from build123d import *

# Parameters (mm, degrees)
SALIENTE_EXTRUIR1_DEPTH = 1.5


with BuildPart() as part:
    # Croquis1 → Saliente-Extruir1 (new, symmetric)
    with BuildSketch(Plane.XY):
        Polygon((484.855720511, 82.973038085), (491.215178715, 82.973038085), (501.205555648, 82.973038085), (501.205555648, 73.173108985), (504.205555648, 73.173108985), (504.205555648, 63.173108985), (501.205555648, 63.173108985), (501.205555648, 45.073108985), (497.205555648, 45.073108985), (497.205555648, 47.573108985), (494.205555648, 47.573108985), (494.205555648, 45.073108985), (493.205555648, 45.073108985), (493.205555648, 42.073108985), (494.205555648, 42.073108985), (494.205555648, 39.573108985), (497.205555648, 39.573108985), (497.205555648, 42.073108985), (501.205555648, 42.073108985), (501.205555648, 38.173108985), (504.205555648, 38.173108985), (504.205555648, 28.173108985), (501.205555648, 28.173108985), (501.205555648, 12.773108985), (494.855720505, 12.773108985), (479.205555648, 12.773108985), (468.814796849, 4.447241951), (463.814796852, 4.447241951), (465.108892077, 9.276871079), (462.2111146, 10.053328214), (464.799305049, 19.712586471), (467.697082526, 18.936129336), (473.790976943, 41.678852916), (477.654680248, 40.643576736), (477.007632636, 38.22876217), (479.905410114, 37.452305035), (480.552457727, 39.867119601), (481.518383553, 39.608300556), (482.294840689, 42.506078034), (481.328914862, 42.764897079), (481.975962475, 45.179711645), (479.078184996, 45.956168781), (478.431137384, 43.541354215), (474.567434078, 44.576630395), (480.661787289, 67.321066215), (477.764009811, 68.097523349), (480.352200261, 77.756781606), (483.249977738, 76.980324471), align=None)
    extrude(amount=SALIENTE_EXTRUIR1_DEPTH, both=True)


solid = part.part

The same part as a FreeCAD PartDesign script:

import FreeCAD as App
import Part
import Sketcher

V = App.Vector
Q = App.Units.Quantity

doc = App.newDocument("Part")
params = doc.addObject("Spreadsheet::Sheet", "Params")
for row, (alias, value) in enumerate([
    ("sketch1_width", "5 mm"),
    ("sketch1_width2", "22 mm"),
    ("sketch1_width3", "3 mm"),
    ("sketch1_width4", "4 mm"),
    ("sketch1_width5", "1 mm"),
    ("pad1_length", "3 mm"),
], start=1):
    params.set(f"A{row}", alias)
    params.set(f"B{row}", "=" + value)
    params.setAlias(f"B{row}", alias)

body = doc.addObject("PartDesign::Body", "Body")

# Sketch on XY plane
sketch1 = doc.addObject("Sketcher::SketchObject", "Sketch")
body.addObject(sketch1)
sketch1.AttachmentSupport = (doc.XY_Plane, [""])
sketch1.MapMode = "FlatFace"
sketch1.addGeometry([
    Part.LineSegment(V(501.2, 83, 0), V(484.9, 83, 0)),  # 0
    Part.LineSegment(V(484.9, 83, 0), V(483.2, 77, 0)),  # 1
    Part.LineSegment(V(483.2, 77, 0), V(480.4, 77.8, 0)),  # 2
    Part.LineSegment(V(480.4, 77.8, 0), V(477.8, 68.1, 0)),  # 3
    Part.LineSegment(V(477.8, 68.1, 0), V(480.7, 67.3, 0)),  # 4
    Part.LineSegment(V(480.7, 67.3, 0), V(474.6, 44.6, 0)),  # 5
    Part.LineSegment(V(474.6, 44.6, 0), V(478.4, 43.5, 0)),  # 6
    Part.LineSegment(V(478.4, 43.5, 0), V(479.1, 46, 0)),  # 7
    Part.LineSegment(V(479.1, 46, 0), V(482, 45.2, 0)),  # 8
    Part.LineSegment(V(482, 45.2, 0), V(481.3, 42.8, 0)),  # 9
    Part.LineSegment(V(481.3, 42.8, 0), V(482.3, 42.5, 0)),  # 10
    Part.LineSegment(V(482.3, 42.5, 0), V(481.5, 39.6, 0)),  # 11
    Part.LineSegment(V(481.5, 39.6, 0), V(480.6, 39.9, 0)),  # 12
    Part.LineSegment(V(480.6, 39.9, 0), V(479.9, 37.5, 0)),  # 13
    Part.LineSegment(V(479.9, 37.5, 0), V(477, 38.2, 0)),  # 14
    Part.LineSegment(V(477, 38.2, 0), V(477.7, 40.6, 0)),  # 15
    Part.LineSegment(V(477.7, 40.6, 0), V(473.8, 41.7, 0)),  # 16
    Part.LineSegment(V(473.8, 41.7, 0), V(467.7, 18.9, 0)),  # 17
    Part.LineSegment(V(467.7, 18.9, 0), V(464.8, 19.7, 0)),  # 18
    Part.LineSegment(V(464.8, 19.7, 0), V(462.2, 10.1, 0)),  # 19
    Part.LineSegment(V(462.2, 10.1, 0), V(465.1, 9.3, 0)),  # 20
    Part.LineSegment(V(465.1, 9.3, 0), V(463.8, 4.4, 0)),  # 21
    Part.LineSegment(V(463.8, 4.4, 0), V(468.8, 4.4, 0)),  # 22
    Part.LineSegment(V(468.8, 4.4, 0), V(479.2, 12.8, 0)),  # 23
    Part.LineSegment(V(479.2, 12.8, 0), V(501.2, 12.8, 0)),  # 24
    Part.LineSegment(V(501.2, 12.8, 0), V(501.2, 28.2, 0)),  # 25
    Part.LineSegment(V(501.2, 28.2, 0), V(504.2, 28.2, 0)),  # 26
    Part.LineSegment(V(504.2, 28.2, 0), V(504.2, 38.2, 0)),  # 27
    Part.LineSegment(V(504.2, 38.2, 0), V(501.2, 38.2, 0)),  # 28
    Part.LineSegment(V(501.2, 38.2, 0), V(501.2, 42.1, 0)),  # 29
    Part.LineSegment(V(501.2, 42.1, 0), V(497.2, 42.1, 0)),  # 30
    Part.LineSegment(V(497.2, 42.1, 0), V(497.2, 39.6, 0)),  # 31
    Part.LineSegment(V(497.2, 39.6, 0), V(494.2, 39.6, 0)),  # 32
    Part.LineSegment(V(494.2, 39.6, 0), V(494.2, 42.1, 0)),  # 33
    Part.LineSegment(V(494.2, 42.1, 0), V(493.2, 42.1, 0)),  # 34
    Part.LineSegment(V(493.2, 42.1, 0), V(493.2, 45.1, 0)),  # 35
    Part.LineSegment(V(493.2, 45.1, 0), V(494.2, 45.1, 0)),  # 36
    Part.LineSegment(V(494.2, 45.1, 0), V(494.2, 47.6, 0)),  # 37
    Part.LineSegment(V(494.2, 47.6, 0), V(497.2, 47.6, 0)),  # 38
    Part.LineSegment(V(497.2, 47.6, 0), V(497.2, 45.1, 0)),  # 39
    Part.LineSegment(V(497.2, 45.1, 0), V(501.2, 45.1, 0)),  # 40
    Part.LineSegment(V(501.2, 45.1, 0), V(501.2, 63.2, 0)),  # 41
    Part.LineSegment(V(501.2, 63.2, 0), V(504.2, 63.2, 0)),  # 42
    Part.LineSegment(V(504.2, 63.2, 0), V(504.2, 73.2, 0)),  # 43
    Part.LineSegment(V(504.2, 73.2, 0), V(501.2, 73.2, 0)),  # 44
    Part.LineSegment(V(501.2, 73.2, 0), V(501.2, 83, 0)),  # 45
], False)
sketch1.addConstraint([
    Sketcher.Constraint("Coincident", 0, 2, 1, 1),
    Sketcher.Constraint("Coincident", 1, 2, 2, 1),
    Sketcher.Constraint("Coincident", 2, 2, 3, 1),
    Sketcher.Constraint("Coincident", 3, 2, 4, 1),
    Sketcher.Constraint("Coincident", 4, 2, 5, 1),
    Sketcher.Constraint("Coincident", 5, 2, 6, 1),
    Sketcher.Constraint("Coincident", 6, 2, 7, 1),
    Sketcher.Constraint("Coincident", 7, 2, 8, 1),
    Sketcher.Constraint("Coincident", 8, 2, 9, 1),
    Sketcher.Constraint("Coincident", 9, 2, 10, 1),
    Sketcher.Constraint("Coincident", 10, 2, 11, 1),
    Sketcher.Constraint("Coincident", 11, 2, 12, 1),
    Sketcher.Constraint("Coincident", 12, 2, 13, 1),
    Sketcher.Constraint("Coincident", 13, 2, 14, 1),
    Sketcher.Constraint("Coincident", 14, 2, 15, 1),
    Sketcher.Constraint("Coincident", 15, 2, 16, 1),
    Sketcher.Constraint("Coincident", 16, 2, 17, 1),
    Sketcher.Constraint("Coincident", 17, 2, 18, 1),
    Sketcher.Constraint("Coincident", 18, 2, 19, 1),
    Sketcher.Constraint("Coincident", 19, 2, 20, 1),
    Sketcher.Constraint("Coincident", 20, 2, 21, 1),
    Sketcher.Constraint("Coincident", 21, 2, 22, 1),
    Sketcher.Constraint("Coincident", 22, 2, 23, 1),
    Sketcher.Constraint("Coincident", 23, 2, 24, 1),
    Sketcher.Constraint("Coincident", 24, 2, 25, 1),
    Sketcher.Constraint("Coincident", 25, 2, 26, 1),
    Sketcher.Constraint("Coincident", 26, 2, 27, 1),
    Sketcher.Constraint("Coincident", 27, 2, 28, 1),
    Sketcher.Constraint("Coincident", 28, 2, 29, 1),
    Sketcher.Constraint("Coincident", 29, 2, 30, 1),
    Sketcher.Constraint("Coincident", 30, 2, 31, 1),
    Sketcher.Constraint("Coincident", 31, 2, 32, 1),
    Sketcher.Constraint("Coincident", 32, 2, 33, 1),
    Sketcher.Constraint("Coincident", 33, 2, 34, 1),
    Sketcher.Constraint("Coincident", 34, 2, 35, 1),
    Sketcher.Constraint("Coincident", 35, 2, 36, 1),
    Sketcher.Constraint("Coincident", 36, 2, 37, 1),
    Sketcher.Constraint("Coincident", 37, 2, 38, 1),
    Sketcher.Constraint("Coincident", 38, 2, 39, 1),
    Sketcher.Constraint("Coincident", 39, 2, 40, 1),
    Sketcher.Constraint("Coincident", 40, 2, 41, 1),
    Sketcher.Constraint("Coincident", 41, 2, 42, 1),
    Sketcher.Constraint("Coincident", 42, 2, 43, 1),
    Sketcher.Constraint("Coincident", 43, 2, 44, 1),
    Sketcher.Constraint("Coincident", 44, 2, 45, 1),
    Sketcher.Constraint("Coincident", 45, 2, 0, 1),
    Sketcher.Constraint("Horizontal", 0),
    Sketcher.Constraint("Horizontal", 22),
    Sketcher.Constraint("Horizontal", 24),
    Sketcher.Constraint("Vertical", 25),
    Sketcher.Constraint("Horizontal", 26),
    Sketcher.Constraint("Vertical", 27),
    Sketcher.Constraint("Horizontal", 28),
    Sketcher.Constraint("Vertical", 29),
    Sketcher.Constraint("Horizontal", 30),
    Sketcher.Constraint("Vertical", 31),
    Sketcher.Constraint("Horizontal", 32),
    Sketcher.Constraint("Vertical", 33),
    Sketcher.Constraint("Horizontal", 34),
    Sketcher.Constraint("Vertical", 35),
    Sketcher.Constraint("Horizontal", 36),
    Sketcher.Constraint("Vertical", 37),
    Sketcher.Constraint("Horizontal", 38),
    Sketcher.Constraint("Vertical", 39),
    Sketcher.Constraint("Horizontal", 40),
    Sketcher.Constraint("Vertical", 41),
    Sketcher.Constraint("Horizontal", 42),
    Sketcher.Constraint("Vertical", 43),
    Sketcher.Constraint("Horizontal", 44),
    Sketcher.Constraint("Vertical", 45),
    Sketcher.Constraint("Perpendicular", 1, 2),
    Sketcher.Constraint("Perpendicular", 2, 3),
    Sketcher.Constraint("Perpendicular", 3, 4),
    Sketcher.Constraint("Perpendicular", 4, 5),
    Sketcher.Constraint("Perpendicular", 5, 6),
    Sketcher.Constraint("Perpendicular", 6, 7),
    Sketcher.Constraint("Perpendicular", 7, 8),
    Sketcher.Constraint("Perpendicular", 8, 9),
    Sketcher.Constraint("Perpendicular", 9, 10),
    Sketcher.Constraint("Perpendicular", 10, 11),
    Sketcher.Constraint("Perpendicular", 11, 12),
    Sketcher.Constraint("Perpendicular", 12, 13),
    Sketcher.Constraint("Perpendicular", 13, 14),
    Sketcher.Constraint("Perpendicular", 14, 15),
    Sketcher.Constraint("Perpendicular", 15, 16),
    Sketcher.Constraint("Perpendicular", 16, 17),
    Sketcher.Constraint("Perpendicular", 17, 18),
    Sketcher.Constraint("Perpendicular", 18, 19),
    Sketcher.Constraint("Perpendicular", 19, 20),
    Sketcher.Constraint("Perpendicular", 20, 21),
    Sketcher.Constraint("Horizontal", 30, 2, 33, 2),
    Sketcher.Constraint("Horizontal", 36, 2, 39, 2),
    Sketcher.Constraint("Vertical", 25, 2, 28, 2),
    Sketcher.Constraint("Vertical", 33, 2, 36, 2),
    Sketcher.Constraint("Vertical", 31, 2, 38, 2),
    Sketcher.Constraint("Vertical", 29, 2, 40, 2),
    Sketcher.Constraint("Vertical", 27, 2, 42, 2),
    Sketcher.Constraint("Vertical", 41, 2, 44, 2),
    Sketcher.Constraint("Equal", 28, 32),
    Sketcher.Constraint("Equal", 44, 35),
    Sketcher.Constraint("Equal", 33, 37),
    Sketcher.Constraint("Equal", 27, 43),
    Sketcher.Constraint("Equal", 2, 4),
    Sketcher.Constraint("Equal", 4, 8),
    Sketcher.Constraint("Equal", 7, 9),
    Sketcher.Constraint("Equal", 8, 11),
    Sketcher.Constraint("Equal", 10, 12),
    Sketcher.Constraint("Equal", 9, 13),
    Sketcher.Constraint("Equal", 11, 14),
    Sketcher.Constraint("Equal", 13, 15),
    Sketcher.Constraint("Equal", 6, 16),
    Sketcher.Constraint("Equal", 14, 18),
    Sketcher.Constraint("Equal", 3, 19),
    Sketcher.Constraint("Equal", 18, 20),
    Sketcher.Constraint("DistanceX", 22, 1, 22, 2, 5.0),
    Sketcher.Constraint("DistanceX", 24, 1, 24, 2, 22.0),
    Sketcher.Constraint("DistanceX", 26, 1, 26, 2, 3.0),
    Sketcher.Constraint("DistanceX", 30, 2, 30, 1, 4.0),
    Sketcher.Constraint("DistanceX", 34, 2, 34, 1, 1.0),
    Sketcher.Constraint("DistanceY", 27, 1, 27, 2, 10.0),
    Sketcher.Constraint("Angle", 1, Q("-105 deg")),
    Sketcher.Constraint("Distance", 2, 3.0),
    Sketcher.Constraint("Distance", 3, 10.0),
    Sketcher.Constraint("Distance", 6, 4.0),
    Sketcher.Constraint("Distance", 10, 1.0),
    Sketcher.Constraint("Distance", 21, 5.0),
    Sketcher.Constraint("DistanceY", 25, 1, 25, 2, 15.4),
    Sketcher.Constraint("DistanceY", 29, 1, 29, 2, 3.9),
    Sketcher.Constraint("DistanceY", 31, 2, 31, 1, 2.5),
    Sketcher.Constraint("DistanceY", 41, 1, 41, 2, 18.1),
    Sketcher.Constraint("Distance", 7, 2.5),
    Sketcher.Constraint("Distance", 17, 23.545),
    Sketcher.Constraint("DistanceY", 45, 1, 45, 2, 9.799929),
    Sketcher.Constraint("DistanceX", -1, 1, 2, 2, 480.3522),
    Sketcher.Constraint("DistanceY", -1, 1, 11, 2, 39.608301),
    Sketcher.Constraint("Distance", 23, 13.314951),
    Sketcher.Constraint("DistanceX", 0, 2, 0, 1, 16.349835),
    Sketcher.Constraint("DistanceX", -1, 1, 0, 2, 484.855721),
])
sketch1.setExpression("Constraints[114]", "Params.sketch1_width")
sketch1.setExpression("Constraints[115]", "Params.sketch1_width2")
sketch1.setExpression("Constraints[116]", "Params.sketch1_width3")
sketch1.setExpression("Constraints[117]", "Params.sketch1_width4")
sketch1.setExpression("Constraints[118]", "Params.sketch1_width5")
pad1 = doc.addObject("PartDesign::Pad", "Pad")
body.addObject(pad1)
pad1.Profile = sketch1
pad1.setExpression("Length", "Params.pad1_length")
pad1.Midplane = True

doc.recompute()
